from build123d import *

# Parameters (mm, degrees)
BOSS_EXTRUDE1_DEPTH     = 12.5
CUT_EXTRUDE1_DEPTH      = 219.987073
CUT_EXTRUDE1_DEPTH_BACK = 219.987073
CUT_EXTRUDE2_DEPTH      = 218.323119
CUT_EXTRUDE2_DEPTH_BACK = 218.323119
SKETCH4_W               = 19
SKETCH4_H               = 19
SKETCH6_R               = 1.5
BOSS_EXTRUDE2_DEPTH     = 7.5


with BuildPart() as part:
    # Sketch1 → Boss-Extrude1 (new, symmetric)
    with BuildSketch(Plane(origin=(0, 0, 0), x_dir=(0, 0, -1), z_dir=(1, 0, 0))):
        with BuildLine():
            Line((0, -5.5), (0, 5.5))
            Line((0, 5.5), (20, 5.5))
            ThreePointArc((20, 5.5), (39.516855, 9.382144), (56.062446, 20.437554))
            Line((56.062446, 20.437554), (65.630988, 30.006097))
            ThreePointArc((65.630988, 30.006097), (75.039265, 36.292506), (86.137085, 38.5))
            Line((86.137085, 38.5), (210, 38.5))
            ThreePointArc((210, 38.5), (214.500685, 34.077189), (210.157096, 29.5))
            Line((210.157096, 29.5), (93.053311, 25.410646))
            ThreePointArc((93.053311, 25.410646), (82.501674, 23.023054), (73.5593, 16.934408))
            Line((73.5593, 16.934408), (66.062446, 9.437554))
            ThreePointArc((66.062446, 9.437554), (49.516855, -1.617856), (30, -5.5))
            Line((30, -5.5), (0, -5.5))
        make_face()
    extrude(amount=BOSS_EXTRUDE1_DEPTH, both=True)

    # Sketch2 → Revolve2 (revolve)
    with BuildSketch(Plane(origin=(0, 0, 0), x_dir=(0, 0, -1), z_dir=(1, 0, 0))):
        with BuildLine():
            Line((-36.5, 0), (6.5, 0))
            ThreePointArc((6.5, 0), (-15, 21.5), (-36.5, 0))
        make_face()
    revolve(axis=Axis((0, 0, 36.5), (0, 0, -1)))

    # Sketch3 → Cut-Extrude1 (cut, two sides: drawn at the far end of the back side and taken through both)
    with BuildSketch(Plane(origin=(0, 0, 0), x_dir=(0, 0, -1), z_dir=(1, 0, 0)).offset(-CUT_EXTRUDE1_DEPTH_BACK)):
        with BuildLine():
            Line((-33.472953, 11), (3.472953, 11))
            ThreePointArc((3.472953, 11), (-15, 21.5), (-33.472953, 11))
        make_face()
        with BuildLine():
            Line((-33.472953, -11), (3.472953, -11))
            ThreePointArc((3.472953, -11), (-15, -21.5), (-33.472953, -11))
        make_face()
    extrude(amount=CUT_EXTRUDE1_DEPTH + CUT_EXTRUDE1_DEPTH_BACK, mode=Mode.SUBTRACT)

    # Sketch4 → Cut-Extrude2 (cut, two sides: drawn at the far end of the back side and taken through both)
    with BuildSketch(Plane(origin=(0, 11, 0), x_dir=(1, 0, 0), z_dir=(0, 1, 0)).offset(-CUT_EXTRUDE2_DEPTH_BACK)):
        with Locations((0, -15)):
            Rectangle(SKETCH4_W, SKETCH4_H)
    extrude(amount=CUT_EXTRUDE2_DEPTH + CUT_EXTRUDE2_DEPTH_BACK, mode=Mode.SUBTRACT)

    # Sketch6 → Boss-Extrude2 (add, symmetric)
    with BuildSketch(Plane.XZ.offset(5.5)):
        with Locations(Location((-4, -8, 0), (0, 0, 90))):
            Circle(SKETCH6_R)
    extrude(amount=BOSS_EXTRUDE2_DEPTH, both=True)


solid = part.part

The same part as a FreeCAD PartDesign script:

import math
import FreeCAD as App
import Part
import Sketcher

V = App.Vector
Q = App.Units.Quantity

doc = App.newDocument("Part")
body = doc.addObject("PartDesign::Body", "Body")

# Sketch on YZ plane
sketch1 = doc.addObject("Sketcher::SketchObject", "Sketch")
body.addObject(sketch1)
sketch1.AttachmentSupport = (doc.YZ_Plane, [""])
sketch1.MapMode = "FlatFace"
sketch1.addGeometry([
    Part.LineSegment(V(5.5, 0, 0), V(-5.5, 0, 0)),  # 0
    Part.LineSegment(V(-5.5, 0, 0), V(-5.5, -30, 0)),  # 1
    Part.ArcOfCircle(Part.Circle(V(45.5, -30, 0), V(0, 0, 1), 51), math.radians(-180), math.radians(-135)),  # 2
    Part.LineSegment(V(9.4, -66.1, 0), V(16.9, -73.6, 0)),  # 3
    Part.ArcOfCircle(Part.Circle(V(-3.6, -94.1, 0), V(0, 0, 1), 29), math.radians(2), math.radians(45)),  # 4
    Part.LineSegment(V(25.4, -93.1, 0), V(29.5, -210.2, 0)),  # 5
    Part.ArcOfCircle(Part.Circle(V(34, -210, 0), V(0, 0, 1), 4.5), math.radians(-178), math.radians(0)),  # 6
    Part.LineSegment(V(38.5, -210, 0), V(38.5, -86.1, 0)),  # 7
    Part.ArcOfCircle(Part.Circle(V(9.5, -86.1, 0), V(0, 0, 1), 29), math.radians(0), math.radians(45)),  # 8
    Part.LineSegment(V(30, -65.6, 0), V(20.4, -56.1, 0)),  # 9
    Part.ArcOfCircle(Part.Circle(V(56.5, -20, 0), V(0, 0, 1), 51), math.radians(-180), math.radians(-135)),  # 10
    Part.LineSegment(V(5.5, -20, 0), V(5.5, 0, 0)),  # 11
], False)
sketch1.addConstraint([
    Sketcher.Constraint("Coincident", 0, 2, 1, 1),
    Sketcher.Constraint("Tangent", 1, 2, 2, 1),
    Sketcher.Constraint("Tangent", 2, 2, 3, 1),
    Sketcher.Constraint("Tangent", 3, 2, 4, 2),
    Sketcher.Constraint("Tangent", 4, 1, 5, 1),
    Sketcher.Constraint("Tangent", 5, 2, 6, 1),
    Sketcher.Constraint("Tangent", 6, 2, 7, 1),
    Sketcher.Constraint("Tangent", 7, 2, 8, 1),
    Sketcher.Constraint("Tangent", 8, 2, 9, 1),
    Sketcher.Constraint("Tangent", 9, 2, 10, 2),
    Sketcher.Constraint("Tangent", 10, 1, 11, 1),
    Sketcher.Constraint("Coincident", 11, 2, 0, 1),
    Sketcher.Constraint("Horizontal", 0),
    Sketcher.Constraint("Vertical", 1),
    Sketcher.Constraint("Vertical", 7),
    Sketcher.Constraint("Vertical", 11),
    Sketcher.Constraint("Equal", 2, 10),
    Sketcher.Constraint("Symmetric", 0, 2, 11, 2, -1, 1),
    Sketcher.Constraint("Parallel", 3, 9),
    Sketcher.Constraint("Radius", 4, 29.000001),
    Sketcher.Constraint("DistanceX", 0, 2, 0, 1, 11.0),
    Sketcher.Constraint("DistanceY", 1, 2, 1, 1, 30.0),
    Sketcher.Constraint("DistanceY", 11, 1, 11, 2, 20.0),
    Sketcher.Constraint("Angle", 3, Q("-45 deg")),
    Sketcher.Constraint("Angle", 5, Q("-88 deg")),
    Sketcher.Constraint("DistanceY", 6, 3, -1, 1, 210.0),
    Sketcher.Constraint("DistanceX", 5, 2, 6, 2, 9.0),
    Sketcher.Constraint("DistanceX", -1, 1, 5, 2, 29.5),
    Sketcher.Constraint("Radius", 2, 51.000003),
    Sketcher.Constraint("Radius", 8, 29.000006),
])
pad1 = doc.addObject("PartDesign::Pad", "Pad")
body.addObject(pad1)
pad1.Profile = sketch1
pad1.Length = 25
pad1.Midplane = True

# Sketch on YZ plane
sketch2 = doc.addObject("Sketcher::SketchObject", "Sketch001")
body.addObject(sketch2)
sketch2.AttachmentSupport = (doc.YZ_Plane, [""])
sketch2.MapMode = "FlatFace"
sketch2.addGeometry([
    Part.LineSegment(V(0, 36, 0), V(0, -6, 0)),
    Part.ArcOfCircle(Part.Circle(V(0, 15, 0), V(0, 0, 1), 22), math.radians(-90), math.radians(90)),
], False)
sketch2.addConstraint([
    Sketcher.Constraint("Coincident", 0, 1, 1, 2),
    Sketcher.Constraint("Coincident", 1, 1, 0, 2),
    Sketcher.Constraint("Vertical", 0),
    Sketcher.Constraint("PointOnObject", 1, 3, -2),
    Sketcher.Constraint("PointOnObject", 0, 1, -2),
    Sketcher.Constraint("Radius", 1, 21.5),
    Sketcher.Constraint("DistanceY", -1, 1, 1, 3, 15.0),
])
revolution = doc.addObject("PartDesign::Revolution", "Revolution")
body.addObject(revolution)
revolution.Profile = sketch2
revolution.ReferenceAxis = (sketch2, ["V_Axis"])
revolution.Angle = 360

# Sketch on YZ plane
sketch3 = doc.addObject("Sketcher::SketchObject", "Sketch002")
body.addObject(sketch3)
sketch3.AttachmentSupport = (doc.YZ_Plane, [""])
sketch3.MapMode = "FlatFace"
sketch3.addGeometry([
    Part.LineSegment(V(11, 33, 0), V(11, -3, 0)),
    Part.ArcOfCircle(Part.Circle(V(0, 15, 0), V(0, 0, 1), 21), math.radians(-59), math.radians(59)),
    Part.LineSegment(V(-11, -3, 0), V(-11, 33, 0)),
    Part.ArcOfCircle(Part.Circle(V(0, 15, 0), V(0, 0, 1), 21), math.radians(121), math.radians(239)),
], False)
sketch3.addConstraint([
    Sketcher.Constraint("Coincident", 0, 1, 1, 2),
    Sketcher.Constraint("Coincident", 1, 1, 0, 2),
    Sketcher.Constraint("Coincident", 2, 1, 3, 2),
    Sketcher.Constraint("Coincident", 3, 1, 2, 2),
    Sketcher.Constraint("Vertical", 0),
    Sketcher.Constraint("Vertical", 2),
    Sketcher.Constraint("Coincident", 3, 3, 1, 3),
    Sketcher.Constraint("Equal", 1, 3),
    Sketcher.Constraint("Symmetric", 1, 1, 2, 1, -2),
    Sketcher.Constraint("Radius", 1, 21.5),
    Sketcher.Constraint("DistanceY", -1, 1, 1, 3, 15.0),
    Sketcher.Constraint("DistanceX", -1, 1, 0, 1, 11.0),
])
pocket1 = doc.addObject("PartDesign::Pocket", "Pocket")
body.addObject(pocket1)
pocket1.Profile = sketch3
pocket1.Type = "ThroughAll"
pocket1.Midplane = True

# Sketch on XZ plane
sketch4 = doc.addObject("Sketcher::SketchObject", "Sketch003")
body.addObject(sketch4)
sketch4.AttachmentSupport = (doc.XZ_Plane, [""])
sketch4.MapMode = "FlatFace"
sketch4.AttachmentOffset = App.Placement(V(0, 0, -11), App.Rotation())
sketch4.addGeometry([
    Part.LineSegment(V(-10, 6, 0), V(-10, 24, 0)),
    Part.LineSegment(V(-10, 24, 0), V(10, 24, 0)),
    Part.LineSegment(V(10, 24, 0), V(10, 6, 0)),
    Part.LineSegment(V(10, 6, 0), V(-10, 6, 0)),
], False)
sketch4.addConstraint([
    Sketcher.Constraint("Coincident", 0, 2, 1, 1),
    Sketcher.Constraint("Coincident", 1, 2, 2, 1),
    Sketcher.Constraint("Coincident", 2, 2, 3, 1),
    Sketcher.Constraint("Coincident", 3, 2, 0, 1),
    Sketcher.Constraint("Vertical", 0),
    Sketcher.Constraint("Horizontal", 1),
    Sketcher.Constraint("Vertical", 2),
    Sketcher.Constraint("Horizontal", 3),
    Sketcher.Constraint("Equal", 3, 0),
    Sketcher.Constraint("DistanceX", 1, 1, 1, 2, 19.0),
    Sketcher.Constraint("DistanceX", 0, 2, -1, 1, 9.5),
    Sketcher.Constraint("DistanceY", -1, 1, 0, 2, 24.5),
])
pocket2 = doc.addObject("PartDesign::Pocket", "Pocket001")
body.addObject(pocket2)
pocket2.Profile = sketch4
pocket2.Type = "ThroughAll"
pocket2.Midplane = True

# Sketch on XZ plane
sketch5 = doc.addObject("Sketcher::SketchObject", "Sketch004")
body.addObject(sketch5)
sketch5.AttachmentSupport = (doc.XZ_Plane, [""])
sketch5.MapMode = "FlatFace"
sketch5.AttachmentOffset = App.Placement(V(0, 0, 5.5), App.Rotation())
sketch5.addGeometry(Part.Circle(V(-4, -8, 0), V(0, 0, 1), 1.5), False)
sketch5.addConstraint([
    Sketcher.Constraint("Diameter", 0, 3.0),
    Sketcher.Constraint("DistanceX", 0, 3, -1, 1, 4.0),
    Sketcher.Constraint("DistanceY", 0, 3, -1, 1, 8.0),
])
pad2 = doc.addObject("PartDesign::Pad", "Pad001")
body.addObject(pad2)
pad2.Profile = sketch5
pad2.Length = 15
pad2.Midplane = True

doc.recompute()
